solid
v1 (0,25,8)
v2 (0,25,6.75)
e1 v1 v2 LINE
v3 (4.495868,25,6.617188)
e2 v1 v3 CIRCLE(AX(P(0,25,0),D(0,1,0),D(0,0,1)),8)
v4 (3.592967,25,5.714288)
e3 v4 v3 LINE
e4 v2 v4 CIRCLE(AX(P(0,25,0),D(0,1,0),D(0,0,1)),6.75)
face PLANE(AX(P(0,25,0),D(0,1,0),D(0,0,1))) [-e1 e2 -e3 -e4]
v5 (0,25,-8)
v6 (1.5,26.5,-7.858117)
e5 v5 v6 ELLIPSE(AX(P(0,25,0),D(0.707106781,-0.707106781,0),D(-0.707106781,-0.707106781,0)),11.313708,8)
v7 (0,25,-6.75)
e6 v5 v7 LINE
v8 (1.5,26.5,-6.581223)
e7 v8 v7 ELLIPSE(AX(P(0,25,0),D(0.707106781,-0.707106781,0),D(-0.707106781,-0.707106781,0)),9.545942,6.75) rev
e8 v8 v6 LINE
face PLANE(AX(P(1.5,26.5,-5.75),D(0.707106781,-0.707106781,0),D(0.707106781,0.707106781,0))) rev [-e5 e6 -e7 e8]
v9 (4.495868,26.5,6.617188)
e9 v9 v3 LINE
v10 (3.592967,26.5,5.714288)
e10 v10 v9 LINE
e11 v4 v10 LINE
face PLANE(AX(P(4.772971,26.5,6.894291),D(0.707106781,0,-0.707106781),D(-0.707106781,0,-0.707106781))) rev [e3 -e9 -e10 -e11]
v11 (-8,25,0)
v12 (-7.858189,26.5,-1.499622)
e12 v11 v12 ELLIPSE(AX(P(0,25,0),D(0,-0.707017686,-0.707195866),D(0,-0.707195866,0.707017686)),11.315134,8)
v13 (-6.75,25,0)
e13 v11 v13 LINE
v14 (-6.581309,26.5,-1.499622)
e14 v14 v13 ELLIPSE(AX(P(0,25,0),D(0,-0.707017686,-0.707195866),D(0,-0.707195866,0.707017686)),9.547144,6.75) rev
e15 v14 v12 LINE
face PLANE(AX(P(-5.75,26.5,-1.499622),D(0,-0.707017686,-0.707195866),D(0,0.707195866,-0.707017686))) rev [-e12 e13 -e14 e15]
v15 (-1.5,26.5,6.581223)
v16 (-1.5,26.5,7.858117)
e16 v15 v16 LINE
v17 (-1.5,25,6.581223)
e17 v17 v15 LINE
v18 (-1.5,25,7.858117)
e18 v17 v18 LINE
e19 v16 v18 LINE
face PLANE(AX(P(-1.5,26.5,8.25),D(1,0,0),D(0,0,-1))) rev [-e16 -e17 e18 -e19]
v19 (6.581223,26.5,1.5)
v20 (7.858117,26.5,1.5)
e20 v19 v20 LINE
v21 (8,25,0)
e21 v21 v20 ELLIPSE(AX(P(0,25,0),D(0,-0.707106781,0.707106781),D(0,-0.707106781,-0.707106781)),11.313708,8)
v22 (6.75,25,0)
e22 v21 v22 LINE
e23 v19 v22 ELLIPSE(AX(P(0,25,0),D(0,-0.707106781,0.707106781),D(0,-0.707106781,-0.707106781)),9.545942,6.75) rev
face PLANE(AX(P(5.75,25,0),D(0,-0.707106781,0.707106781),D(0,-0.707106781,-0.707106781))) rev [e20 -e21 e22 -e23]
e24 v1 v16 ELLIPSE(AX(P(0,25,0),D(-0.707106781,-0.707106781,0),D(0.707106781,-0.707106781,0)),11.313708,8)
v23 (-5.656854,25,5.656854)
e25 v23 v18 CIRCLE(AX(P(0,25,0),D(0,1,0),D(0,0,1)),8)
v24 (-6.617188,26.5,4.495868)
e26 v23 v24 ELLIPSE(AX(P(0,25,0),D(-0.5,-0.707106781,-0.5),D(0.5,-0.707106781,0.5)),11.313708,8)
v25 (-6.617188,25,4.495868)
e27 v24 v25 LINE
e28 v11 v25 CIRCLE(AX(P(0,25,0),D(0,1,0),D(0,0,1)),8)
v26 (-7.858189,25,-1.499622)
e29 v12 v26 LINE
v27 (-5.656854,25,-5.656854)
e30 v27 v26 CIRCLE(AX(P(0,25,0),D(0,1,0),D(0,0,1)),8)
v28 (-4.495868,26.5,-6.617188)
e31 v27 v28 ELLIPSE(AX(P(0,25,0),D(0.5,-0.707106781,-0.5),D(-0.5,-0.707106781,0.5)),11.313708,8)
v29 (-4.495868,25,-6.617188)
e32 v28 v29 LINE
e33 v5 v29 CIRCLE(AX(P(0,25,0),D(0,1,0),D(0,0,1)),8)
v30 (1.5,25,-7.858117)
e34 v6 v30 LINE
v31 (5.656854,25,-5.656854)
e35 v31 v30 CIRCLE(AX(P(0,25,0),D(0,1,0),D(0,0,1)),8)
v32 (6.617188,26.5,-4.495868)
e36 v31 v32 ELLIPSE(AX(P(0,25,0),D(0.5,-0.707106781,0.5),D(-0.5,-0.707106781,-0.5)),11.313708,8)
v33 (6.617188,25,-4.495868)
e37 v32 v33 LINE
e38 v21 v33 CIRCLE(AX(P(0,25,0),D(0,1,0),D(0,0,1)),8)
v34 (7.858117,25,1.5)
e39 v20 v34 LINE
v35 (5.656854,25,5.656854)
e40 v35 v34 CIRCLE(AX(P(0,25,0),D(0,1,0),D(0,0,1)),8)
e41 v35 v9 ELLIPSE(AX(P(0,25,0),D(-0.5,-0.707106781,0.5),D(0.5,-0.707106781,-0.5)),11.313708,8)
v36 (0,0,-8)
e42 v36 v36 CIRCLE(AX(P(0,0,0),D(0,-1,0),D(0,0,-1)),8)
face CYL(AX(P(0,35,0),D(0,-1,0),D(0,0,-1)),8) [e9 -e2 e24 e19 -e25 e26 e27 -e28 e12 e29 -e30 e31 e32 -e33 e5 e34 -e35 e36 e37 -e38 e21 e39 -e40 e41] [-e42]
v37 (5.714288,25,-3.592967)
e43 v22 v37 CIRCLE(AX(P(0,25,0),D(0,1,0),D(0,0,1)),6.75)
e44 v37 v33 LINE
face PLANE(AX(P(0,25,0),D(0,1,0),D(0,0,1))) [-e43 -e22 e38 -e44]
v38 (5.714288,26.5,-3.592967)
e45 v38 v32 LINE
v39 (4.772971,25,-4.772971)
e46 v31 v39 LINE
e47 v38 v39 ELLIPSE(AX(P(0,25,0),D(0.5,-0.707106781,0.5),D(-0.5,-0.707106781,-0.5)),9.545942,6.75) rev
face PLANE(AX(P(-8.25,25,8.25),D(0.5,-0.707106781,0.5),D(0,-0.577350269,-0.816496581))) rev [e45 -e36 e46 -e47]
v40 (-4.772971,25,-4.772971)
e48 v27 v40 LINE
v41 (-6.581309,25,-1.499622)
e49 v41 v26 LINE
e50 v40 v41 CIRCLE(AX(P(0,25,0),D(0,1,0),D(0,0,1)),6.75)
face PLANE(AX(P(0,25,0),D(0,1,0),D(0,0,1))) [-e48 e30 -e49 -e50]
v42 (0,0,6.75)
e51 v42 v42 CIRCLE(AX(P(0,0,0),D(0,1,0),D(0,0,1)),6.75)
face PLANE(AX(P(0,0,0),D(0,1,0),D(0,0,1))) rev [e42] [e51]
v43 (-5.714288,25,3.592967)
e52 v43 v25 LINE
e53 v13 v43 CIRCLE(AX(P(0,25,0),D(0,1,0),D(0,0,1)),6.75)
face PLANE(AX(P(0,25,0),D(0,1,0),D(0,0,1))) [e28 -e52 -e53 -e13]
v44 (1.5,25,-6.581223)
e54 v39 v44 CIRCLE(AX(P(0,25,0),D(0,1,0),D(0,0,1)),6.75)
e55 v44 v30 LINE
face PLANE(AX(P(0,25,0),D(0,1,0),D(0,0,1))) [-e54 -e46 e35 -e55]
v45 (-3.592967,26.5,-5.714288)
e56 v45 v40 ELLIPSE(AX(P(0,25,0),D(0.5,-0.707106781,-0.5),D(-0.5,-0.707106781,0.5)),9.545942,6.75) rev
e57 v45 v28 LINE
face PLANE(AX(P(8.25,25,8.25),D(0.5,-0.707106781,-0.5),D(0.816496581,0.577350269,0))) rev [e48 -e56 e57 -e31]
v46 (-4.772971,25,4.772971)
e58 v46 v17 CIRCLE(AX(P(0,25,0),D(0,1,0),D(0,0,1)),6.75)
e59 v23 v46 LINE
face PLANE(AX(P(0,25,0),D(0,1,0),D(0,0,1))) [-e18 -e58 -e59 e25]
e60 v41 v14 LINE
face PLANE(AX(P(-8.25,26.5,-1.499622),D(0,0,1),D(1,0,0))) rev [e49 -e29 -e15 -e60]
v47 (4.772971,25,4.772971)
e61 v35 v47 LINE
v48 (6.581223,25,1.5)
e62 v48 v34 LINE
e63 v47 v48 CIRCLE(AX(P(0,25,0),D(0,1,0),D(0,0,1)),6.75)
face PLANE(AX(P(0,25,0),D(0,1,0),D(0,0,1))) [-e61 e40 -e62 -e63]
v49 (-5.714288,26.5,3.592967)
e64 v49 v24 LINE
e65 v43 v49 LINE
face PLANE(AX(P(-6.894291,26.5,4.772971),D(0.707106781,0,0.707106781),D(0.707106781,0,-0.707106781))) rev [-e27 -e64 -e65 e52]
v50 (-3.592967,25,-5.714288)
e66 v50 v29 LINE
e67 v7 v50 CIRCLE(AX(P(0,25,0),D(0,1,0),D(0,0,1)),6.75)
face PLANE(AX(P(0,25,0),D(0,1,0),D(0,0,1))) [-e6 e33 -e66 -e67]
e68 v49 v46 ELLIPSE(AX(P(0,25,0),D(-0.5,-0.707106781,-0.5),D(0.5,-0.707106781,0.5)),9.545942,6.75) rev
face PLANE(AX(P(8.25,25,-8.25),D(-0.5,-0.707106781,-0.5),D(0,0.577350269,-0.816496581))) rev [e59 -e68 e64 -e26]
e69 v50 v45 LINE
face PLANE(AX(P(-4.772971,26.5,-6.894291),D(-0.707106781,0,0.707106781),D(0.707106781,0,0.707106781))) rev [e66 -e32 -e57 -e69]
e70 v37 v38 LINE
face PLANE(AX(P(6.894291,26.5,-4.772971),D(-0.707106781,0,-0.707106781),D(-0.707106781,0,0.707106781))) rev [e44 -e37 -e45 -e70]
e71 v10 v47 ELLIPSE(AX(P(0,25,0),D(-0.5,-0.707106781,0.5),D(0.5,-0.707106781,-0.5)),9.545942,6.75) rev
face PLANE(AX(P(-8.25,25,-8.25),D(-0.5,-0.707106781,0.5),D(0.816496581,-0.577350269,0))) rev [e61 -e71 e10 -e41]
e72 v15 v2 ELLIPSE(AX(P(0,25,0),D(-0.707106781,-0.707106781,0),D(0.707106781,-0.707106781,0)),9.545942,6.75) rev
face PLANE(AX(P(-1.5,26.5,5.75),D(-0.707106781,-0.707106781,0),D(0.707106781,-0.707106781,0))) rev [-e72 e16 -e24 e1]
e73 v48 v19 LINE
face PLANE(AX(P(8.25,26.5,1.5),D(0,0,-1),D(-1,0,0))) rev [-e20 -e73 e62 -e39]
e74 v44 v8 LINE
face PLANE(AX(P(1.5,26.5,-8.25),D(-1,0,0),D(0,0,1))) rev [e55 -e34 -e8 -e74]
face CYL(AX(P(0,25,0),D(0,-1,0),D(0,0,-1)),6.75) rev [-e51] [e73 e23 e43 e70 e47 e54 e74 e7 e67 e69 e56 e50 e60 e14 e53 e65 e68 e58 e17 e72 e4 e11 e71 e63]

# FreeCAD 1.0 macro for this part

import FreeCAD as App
import Part
import Sketcher

V = App.Vector
Q = App.Units.Quantity


def add_polygon(sketch, points):
    """Adds a closed chain of lines whose ends are joined by coincident constraints."""
    first, n = sketch.GeometryCount, len(points)
    for a, b in zip(points, points[1:] + points[:1]):
        sketch.addGeometry(Part.LineSegment(App.Vector(*a, 0), App.Vector(*b, 0)), False)
    for i in range(n):
        sketch.addConstraint(Sketcher.Constraint("Coincident", first + i, 2, first + (i + 1) % n, 1))

doc = App.newDocument("Part")
body = doc.addObject("PartDesign::Body", "Body")

sketch1 = doc.addObject("Sketcher::SketchObject", "Sketch")
body.addObject(sketch1)
sketch1.AttachmentSupport = (doc.XZ_Plane, [""])
sketch1.MapMode = "FlatFace"
sketch1.addGeometry([
    Part.Circle(V(0, 0, 0), V(0, 0, 1), 8),
    Part.Circle(V(0, 0, 0), V(0, 0, 1), 7),
], False)
sketch1.addConstraint([
    Sketcher.Constraint("Coincident", 0, 3, -1, 1),
    Sketcher.Constraint("Coincident", 1, 3, -1, 1),
    Sketcher.Constraint("Diameter", 0, Q("16.5 mm")),
    Sketcher.Constraint("Diameter", 1, Q("13.5 mm")),
])
pad1 = doc.addObject("PartDesign::Pad", "Pad")
body.addObject(pad1)
pad1.Profile = sketch1
pad1.Length = 25
pad1.Reversed = True

sketch2 = doc.addObject("Sketcher::SketchObject", "Sketch001")
body.addObject(sketch2)
sketch2.AttachmentSupport = (doc.XZ_Plane, [""])
sketch2.MapMode = "FlatFace"
sketch2.AttachmentOffset = App.Placement(V(0, 0, -25), App.Rotation())
add_polygon(sketch2, [(0, -8.2), (0, -6.5), (1.5, -6.5), (1.5, -8.2)])
add_polygon(sketch2, [(6.5, 0), (6.5, 1.5), (8.2, 1.5), (8.2, 0)])
add_polygon(sketch2, [(-1.5, 6.5), (-1.5, 8.2), (0, 8.2), (0, 6.5)])
add_polygon(sketch2, [(-8.2, -1.5), (-8.2, 0), (-6.5, 0), (-6.5, -1.5)])
add_polygon(sketch2, [(-4.8, -6.9), (-5.8, -5.8), (-4.6, -4.6), (-3.5, -5.7)])
add_polygon(sketch2, [(6.9, -4.8), (5.8, -5.8), (4.6, -4.6), (5.7, -3.5)])
add_polygon(sketch2, [(4.8, 6.9), (5.8, 5.8), (4.6, 4.6), (3.5, 5.7)])
add_polygon(sketch2, [(-6.9, 4.8), (-5.8, 5.8), (-4.6, 4.6), (-5.7, 3.5)])
sketch2.addConstraint([
    Sketcher.Constraint("Vertical", 0),
    Sketcher.Constraint("Horizontal", 1),
    Sketcher.Constraint("Vertical", 2),
    Sketcher.Constraint("Horizontal", 3),
    Sketcher.Constraint("Vertical", 4),
    Sketcher.Constraint("Horizontal", 5),
    Sketcher.Constraint("Vertical", 6),
    Sketcher.Constraint("Horizontal", 7),
    Sketcher.Constraint("Vertical", 8),
    Sketcher.Constraint("Horizontal", 9),
    Sketcher.Constraint("Vertical", 10),
    Sketcher.Constraint("Horizontal", 11),
    Sketcher.Constraint("Vertical", 12),
    Sketcher.Constraint("Horizontal", 13),
    Sketcher.Constraint("Vertical", 14),
    Sketcher.Constraint("Horizontal", 15),
    Sketcher.Constraint("Symmetric", 2, 2, 8, 2, -1, 1),
    Sketcher.Constraint("Symmetric", 0, 2, 10, 2, -1, 1),
    Sketcher.Constraint("Symmetric", 6, 2, 12, 2, -1, 1),
    Sketcher.Constraint("Symmetric", 16, 2, 24, 2, -1, 1),
    Sketcher.Constraint("Symmetric", 17, 2, 25, 2, -1, 1),
    Sketcher.Constraint("Symmetric", 18, 2, 26, 2, -1, 1),
    Sketcher.Constraint("Symmetric", 19, 2, 27, 2, -1, 1),
    Sketcher.Constraint("Symmetric", 20, 2, 28, 2, -1, 1),
    Sketcher.Constraint("Symmetric", 21, 2, 29, 2, -1, 1),
    Sketcher.Constraint("Symmetric", 22, 2, 30, 2, -1, 1),
    Sketcher.Constraint("Symmetric", 23, 2, 31, 2, -1, 1),
    Sketcher.Constraint("Symmetric", 7, 2, 13, 2, -2),
    Sketcher.Constraint("Symmetric", 16, 2, 20, 2, -2),
    Sketcher.Constraint("Symmetric", 17, 2, 21, 2, -2),
    Sketcher.Constraint("PointOnObject", 0, 2, -2),
    Sketcher.Constraint("Perpendicular", 16, 17),
    Sketcher.Constraint("Perpendicular", 17, 18),
    Sketcher.Constraint("Perpendicular", 18, 19),
    Sketcher.Constraint("Parallel", 19, 20),
    Sketcher.Constraint("Perpendicular", 20, 21),
    Sketcher.Constraint("Perpendicular", 21, 22),
    Sketcher.Constraint("Perpendicular", 22, 23),
    Sketcher.Constraint("Equal", 15, 0),
    Sketcher.Constraint("Equal", 11, 4),
    Sketcher.Constraint("Equal", 18, 20),
    Sketcher.Constraint("DistanceX", 1, 1, 1, 2, Q("1.5 mm")),
    Sketcher.Constraint("DistanceX", 1, 2, 4, 2, Q("5 mm")),
    Sketcher.Constraint("DistanceY", 1, 2, 4, 2, Q("8 mm")),
    Sketcher.Constraint("Distance", 16, Q("1.5 mm")),
    Sketcher.Constraint("DistanceX", 5, 1, 5, 2, Q("1.75 mm")),
    Sketcher.Constraint("Distance", 17, Q("1.75 mm")),
    Sketcher.Constraint("DistanceY", 12, 1, 12, 2, Q("1.499622 mm")),
    Sketcher.Constraint("DistanceX", 16, 2, -1, 1, Q("5.833631 mm")),
    Sketcher.Constraint("DistanceY", 16, 2, -1, 1, Q("5.833631 mm")),
])
pad2 = doc.addObject("PartDesign::Pad", "Pad001")
body.addObject(pad2)
pad2.Profile = sketch2
pad2.Length = 1.5
pad2.Reversed = True

sketch3 = doc.addObject("Sketcher::SketchObject", "Sketch002")
body.addObject(sketch3)
sketch3.AttachmentSupport = (doc.XY_Plane, [""])
sketch3.MapMode = "FlatFace"
sketch3.AttachmentOffset = App.Placement(V(0, 0, 8.25), App.Rotation())
add_polygon(sketch3, [(-1.5, 26.5), (0, 25), (0, 26.5)])
sketch3.addConstraint([
    Sketcher.Constraint("Vertical", 1),
    Sketcher.Constraint("Horizontal", 2),
    Sketcher.Constraint("PointOnObject", 0, 2, -2),
    Sketcher.Constraint("Equal", 2, 1),
    Sketcher.Constraint("DistanceX", 2, 2, 2, 1, Q("1.5 mm")),
    Sketcher.Constraint("DistanceY", -1, 1, 0, 2, Q("25 mm")),
])
pocket1 = doc.addObject("PartDesign::Pocket", "Pocket")
body.addObject(pocket1)
pocket1.Profile = sketch3
pocket1.Length = 2.5

sketch4 = doc.addObject("Sketcher::SketchObject", "Sketch003")
body.addObject(sketch4)
sketch4.AttachmentSupport = (doc.YZ_Plane, [""])
sketch4.MapMode = "FlatFace"
sketch4.AttachmentOffset = App.Placement(V(0, 0, -8.25), App.Rotation())
add_polygon(sketch4, [(26.5, 0), (26.5, -1.5), (25, 0)])
sketch4.addConstraint([
    Sketcher.Constraint("Vertical", 0),
    Sketcher.Constraint("Horizontal", 2),
    Sketcher.Constraint("PointOnObject", 1, 2, -1),
    Sketcher.Constraint("DistanceX", 2, 1, 2, 2, Q("1.5 mm")),
    Sketcher.Constraint("DistanceX", -1, 1, 1, 2, Q("25 mm")),
    Sketcher.Constraint("DistanceY", 0, 2, 0, 1, Q("1.499622 mm")),
])
pocket2 = doc.addObject("PartDesign::Pocket", "Pocket001")
body.addObject(pocket2)
pocket2.Profile = sketch4
pocket2.Length = 2.5
pocket2.Reversed = True

sketch5 = doc.addObject("Sketcher::SketchObject", "Sketch004")
body.addObject(sketch5)
sketch5.AttachmentSupport = (doc.XY_Plane, [""])
sketch5.MapMode = "FlatFace"
sketch5.AttachmentOffset = App.Placement(V(0, 0, -8.25), App.Rotation())
add_polygon(sketch5, [(0, 26.5), (1.5, 26.5), (0, 25)])
sketch5.addConstraint([
    Sketcher.Constraint("Horizontal", 0),
    Sketcher.Constraint("Vertical", 2),
    Sketcher.Constraint("PointOnObject", 1, 2, -2),
    Sketcher.Constraint("Equal", 0, 2),
    Sketcher.Constraint("DistanceX", 0, 1, 0, 2, Q("1.5 mm")),
    Sketcher.Constraint("DistanceY", -1, 1, 1, 2, Q("25 mm")),
])
pocket3 = doc.addObject("PartDesign::Pocket", "Pocket002")
body.addObject(pocket3)
pocket3.Profile = sketch5
pocket3.Length = 2.5
pocket3.Reversed = True

sketch6 = doc.addObject("Sketcher::SketchObject", "Sketch005")
body.addObject(sketch6)
sketch6.AttachmentSupport = (doc.YZ_Plane, [""])
sketch6.MapMode = "FlatFace"
sketch6.AttachmentOffset = App.Placement(V(0, 0, 8.25), App.Rotation())
add_polygon(sketch6, [(26.5, 0), (26.5, 1.5), (25, 0)])
sketch6.addConstraint([
    Sketcher.Constraint("Vertical", 0),
    Sketcher.Constraint("Horizontal", 2),
    Sketcher.Constraint("PointOnObject", 1, 2, -1),
    Sketcher.Constraint("Equal", 2, 0),
    Sketcher.Constraint("DistanceX", 2, 1, 2, 2, Q("1.5 mm")),
    Sketcher.Constraint("DistanceX", -1, 1, 1, 2, Q("25 mm")),
])
pocket4 = doc.addObject("PartDesign::Pocket", "Pocket003")
body.addObject(pocket4)
pocket4.Profile = sketch6
pocket4.Length = 2.5

sketch7 = doc.addObject("Sketcher::SketchObject", "Sketch006")
body.addObject(sketch7)
sketch7.AttachmentSupport = (doc.XZ_Plane, [""])
sketch7.MapMode = "FlatFace"
sketch7.AttachmentOffset = App.Placement(V(0, 0, -25), App.Rotation())
sketch7.addGeometry(Part.Circle(V(0, 0, 0), V(0, 0, 1), 7), False)
sketch7.addConstraint([
    Sketcher.Constraint("Coincident", 0, 3, -1, 1),
    Sketcher.Constraint("Diameter", 0, Q("13.25 mm")),
])
pocket5 = doc.addObject("PartDesign::Pocket", "Pocket004")
body.addObject(pocket5)
pocket5.Profile = sketch7
pocket5.Length = 2.5

sketch8 = doc.addObject("Sketcher::SketchObject", "Sketch007")
body.addObject(sketch8)
sketch8.Placement = App.Placement(V(-5.833631, 0, 5.833631), App.Rotation(V(0.707106781, 0, 0.707106781), V(0, 0.999999999, 0), V(-0.707106781, 0, 0.707106781), "ZXY"))
add_polygon(sketch8, [(-1.5, 26.5), (0, 25), (0, 26.5)])
sketch8.addConstraint([
    Sketcher.Constraint("Vertical", 1),
    Sketcher.Constraint("Horizontal", 2),
    Sketcher.Constraint("PointOnObject", 0, 2, -2),
    Sketcher.Constraint("Equal", 2, 1),
    Sketcher.Constraint("DistanceX", 2, 2, 2, 1, Q("1.5 mm")),
    Sketcher.Constraint("DistanceY", -1, 1, 0, 2, Q("25 mm")),
])
pocket6 = doc.addObject("PartDesign::Pocket", "Pocket005")
body.addObject(pocket6)
pocket6.Profile = sketch8
pocket6.Type = "ThroughAll"

sketch9 = doc.addObject("Sketcher::SketchObject", "Sketch008")
body.addObject(sketch9)
sketch9.Placement = App.Placement(V(-5.833631, 0, -5.833631), App.Rotation(V(-0.707106781, 0, 0.707106781), V(0, 0.999999999, 0), V(-0.707106781, 0, -0.707106781), "ZXY"))
add_polygon(sketch9, [(-1.5, 26.5), (0, 25), (0, 26.5)])
sketch9.addConstraint([
    Sketcher.Constraint("Vertical", 1),
    Sketcher.Constraint("Horizontal", 2),
    Sketcher.Constraint("PointOnObject", 0, 2, -2),
    Sketcher.Constraint("Equal", 2, 1),
    Sketcher.Constraint("DistanceX", 2, 2, 2, 1, Q("1.5 mm")),
    Sketcher.Constraint("DistanceY", -1, 1, 0, 2, Q("25 mm")),
])
pocket7 = doc.addObject("PartDesign::Pocket", "Pocket006")
body.addObject(pocket7)
pocket7.Profile = sketch9
pocket7.Type = "ThroughAll"

sketch10 = doc.addObject("Sketcher::SketchObject", "Sketch009")
body.addObject(sketch10)
sketch10.Placement = App.Placement(V(5.833631, 0, -5.833631), App.Rotation(V(-0.707106781, 0, -0.707106781), V(0, 0.999999999, 0), V(0.707106781, 0, -0.707106781), "ZXY"))
add_polygon(sketch10, [(-1.5, 26.5), (0, 25), (0, 26.5)])
sketch10.addConstraint([
    Sketcher.Constraint("Vertical", 1),
    Sketcher.Constraint("Horizontal", 2),
    Sketcher.Constraint("PointOnObject", 0, 2, -2),
    Sketcher.Constraint("Equal", 2, 1),
    Sketcher.Constraint("DistanceX", 2, 2, 2, 1, Q("1.5 mm")),
    Sketcher.Constraint("DistanceY", -1, 1, 0, 2, Q("25 mm")),
])
pocket8 = doc.addObject("PartDesign::Pocket", "Pocket007")
body.addObject(pocket8)
pocket8.Profile = sketch10
pocket8.Type = "ThroughAll"

sketch11 = doc.addObject("Sketcher::SketchObject", "Sketch010")
body.addObject(sketch11)
sketch11.Placement = App.Placement(V(5.833631, 0, 5.833631), App.Rotation(V(0.707106781, 0, -0.707106781), V(0, 0.999999999, 0), V(0.707106781, 0, 0.707106781), "ZXY"))
add_polygon(sketch11, [(-1.5, 26.5), (0, 25), (0, 26.5)])
sketch11.addConstraint([
    Sketcher.Constraint("Vertical", 1),
    Sketcher.Constraint("Horizontal", 2),
    Sketcher.Constraint("PointOnObject", 0, 2, -2),
    Sketcher.Constraint("Equal", 2, 1),
    Sketcher.Constraint("DistanceX", 2, 2, 2, 1, Q("1.5 mm")),
    Sketcher.Constraint("DistanceY", -1, 1, 0, 2, Q("25 mm")),
])
pocket9 = doc.addObject("PartDesign::Pocket", "Pocket008")
body.addObject(pocket9)
pocket9.Profile = sketch11
pocket9.Type = "ThroughAll"

sketch12 = doc.addObject("Sketcher::SketchObject", "Sketch011")
body.addObject(sketch12)
sketch12.AttachmentSupport = (doc.XZ_Plane, [""])
sketch12.MapMode = "FlatFace"
sketch12.addGeometry([
    Part.Circle(V(0, 0, 0), V(0, 0, 1), 10),
    Part.Circle(V(0, 0, 0), V(0, 0, 1), 8),
], False)
sketch12.addConstraint([
    Sketcher.Constraint("Coincident", 0, 3, -1, 1),
    Sketcher.Constraint("Coincident", 1, 3, -1, 1),
    Sketcher.Constraint("Diameter", 1, Q("16 mm")),
    Sketcher.Constraint("Diameter", 0, Q("20.664554 mm")),
])
pocket10 = doc.addObject("PartDesign::Pocket", "Pocket009")
body.addObject(pocket10)
pocket10.Profile = sketch12
pocket10.Length = 35

sketch13 = doc.addObject("Sketcher::SketchObject", "Sketch012")
body.addObject(sketch13)
sketch13.AttachmentSupport = (doc.XZ_Plane, [""])
sketch13.MapMode = "FlatFace"
sketch13.addGeometry(Part.Circle(V(0, 0, 0), V(0, 0, 1), 7), False)
sketch13.addConstraint([
    Sketcher.Constraint("Coincident", 0, 3, -1, 1),
    Sketcher.Constraint("Diameter", 0, Q("13.5 mm")),
])
pocket11 = doc.addObject("PartDesign::Pocket", "Pocket010")
body.addObject(pocket11)
pocket11.Profile = sketch13
pocket11.Length = 40

doc.recompute()
